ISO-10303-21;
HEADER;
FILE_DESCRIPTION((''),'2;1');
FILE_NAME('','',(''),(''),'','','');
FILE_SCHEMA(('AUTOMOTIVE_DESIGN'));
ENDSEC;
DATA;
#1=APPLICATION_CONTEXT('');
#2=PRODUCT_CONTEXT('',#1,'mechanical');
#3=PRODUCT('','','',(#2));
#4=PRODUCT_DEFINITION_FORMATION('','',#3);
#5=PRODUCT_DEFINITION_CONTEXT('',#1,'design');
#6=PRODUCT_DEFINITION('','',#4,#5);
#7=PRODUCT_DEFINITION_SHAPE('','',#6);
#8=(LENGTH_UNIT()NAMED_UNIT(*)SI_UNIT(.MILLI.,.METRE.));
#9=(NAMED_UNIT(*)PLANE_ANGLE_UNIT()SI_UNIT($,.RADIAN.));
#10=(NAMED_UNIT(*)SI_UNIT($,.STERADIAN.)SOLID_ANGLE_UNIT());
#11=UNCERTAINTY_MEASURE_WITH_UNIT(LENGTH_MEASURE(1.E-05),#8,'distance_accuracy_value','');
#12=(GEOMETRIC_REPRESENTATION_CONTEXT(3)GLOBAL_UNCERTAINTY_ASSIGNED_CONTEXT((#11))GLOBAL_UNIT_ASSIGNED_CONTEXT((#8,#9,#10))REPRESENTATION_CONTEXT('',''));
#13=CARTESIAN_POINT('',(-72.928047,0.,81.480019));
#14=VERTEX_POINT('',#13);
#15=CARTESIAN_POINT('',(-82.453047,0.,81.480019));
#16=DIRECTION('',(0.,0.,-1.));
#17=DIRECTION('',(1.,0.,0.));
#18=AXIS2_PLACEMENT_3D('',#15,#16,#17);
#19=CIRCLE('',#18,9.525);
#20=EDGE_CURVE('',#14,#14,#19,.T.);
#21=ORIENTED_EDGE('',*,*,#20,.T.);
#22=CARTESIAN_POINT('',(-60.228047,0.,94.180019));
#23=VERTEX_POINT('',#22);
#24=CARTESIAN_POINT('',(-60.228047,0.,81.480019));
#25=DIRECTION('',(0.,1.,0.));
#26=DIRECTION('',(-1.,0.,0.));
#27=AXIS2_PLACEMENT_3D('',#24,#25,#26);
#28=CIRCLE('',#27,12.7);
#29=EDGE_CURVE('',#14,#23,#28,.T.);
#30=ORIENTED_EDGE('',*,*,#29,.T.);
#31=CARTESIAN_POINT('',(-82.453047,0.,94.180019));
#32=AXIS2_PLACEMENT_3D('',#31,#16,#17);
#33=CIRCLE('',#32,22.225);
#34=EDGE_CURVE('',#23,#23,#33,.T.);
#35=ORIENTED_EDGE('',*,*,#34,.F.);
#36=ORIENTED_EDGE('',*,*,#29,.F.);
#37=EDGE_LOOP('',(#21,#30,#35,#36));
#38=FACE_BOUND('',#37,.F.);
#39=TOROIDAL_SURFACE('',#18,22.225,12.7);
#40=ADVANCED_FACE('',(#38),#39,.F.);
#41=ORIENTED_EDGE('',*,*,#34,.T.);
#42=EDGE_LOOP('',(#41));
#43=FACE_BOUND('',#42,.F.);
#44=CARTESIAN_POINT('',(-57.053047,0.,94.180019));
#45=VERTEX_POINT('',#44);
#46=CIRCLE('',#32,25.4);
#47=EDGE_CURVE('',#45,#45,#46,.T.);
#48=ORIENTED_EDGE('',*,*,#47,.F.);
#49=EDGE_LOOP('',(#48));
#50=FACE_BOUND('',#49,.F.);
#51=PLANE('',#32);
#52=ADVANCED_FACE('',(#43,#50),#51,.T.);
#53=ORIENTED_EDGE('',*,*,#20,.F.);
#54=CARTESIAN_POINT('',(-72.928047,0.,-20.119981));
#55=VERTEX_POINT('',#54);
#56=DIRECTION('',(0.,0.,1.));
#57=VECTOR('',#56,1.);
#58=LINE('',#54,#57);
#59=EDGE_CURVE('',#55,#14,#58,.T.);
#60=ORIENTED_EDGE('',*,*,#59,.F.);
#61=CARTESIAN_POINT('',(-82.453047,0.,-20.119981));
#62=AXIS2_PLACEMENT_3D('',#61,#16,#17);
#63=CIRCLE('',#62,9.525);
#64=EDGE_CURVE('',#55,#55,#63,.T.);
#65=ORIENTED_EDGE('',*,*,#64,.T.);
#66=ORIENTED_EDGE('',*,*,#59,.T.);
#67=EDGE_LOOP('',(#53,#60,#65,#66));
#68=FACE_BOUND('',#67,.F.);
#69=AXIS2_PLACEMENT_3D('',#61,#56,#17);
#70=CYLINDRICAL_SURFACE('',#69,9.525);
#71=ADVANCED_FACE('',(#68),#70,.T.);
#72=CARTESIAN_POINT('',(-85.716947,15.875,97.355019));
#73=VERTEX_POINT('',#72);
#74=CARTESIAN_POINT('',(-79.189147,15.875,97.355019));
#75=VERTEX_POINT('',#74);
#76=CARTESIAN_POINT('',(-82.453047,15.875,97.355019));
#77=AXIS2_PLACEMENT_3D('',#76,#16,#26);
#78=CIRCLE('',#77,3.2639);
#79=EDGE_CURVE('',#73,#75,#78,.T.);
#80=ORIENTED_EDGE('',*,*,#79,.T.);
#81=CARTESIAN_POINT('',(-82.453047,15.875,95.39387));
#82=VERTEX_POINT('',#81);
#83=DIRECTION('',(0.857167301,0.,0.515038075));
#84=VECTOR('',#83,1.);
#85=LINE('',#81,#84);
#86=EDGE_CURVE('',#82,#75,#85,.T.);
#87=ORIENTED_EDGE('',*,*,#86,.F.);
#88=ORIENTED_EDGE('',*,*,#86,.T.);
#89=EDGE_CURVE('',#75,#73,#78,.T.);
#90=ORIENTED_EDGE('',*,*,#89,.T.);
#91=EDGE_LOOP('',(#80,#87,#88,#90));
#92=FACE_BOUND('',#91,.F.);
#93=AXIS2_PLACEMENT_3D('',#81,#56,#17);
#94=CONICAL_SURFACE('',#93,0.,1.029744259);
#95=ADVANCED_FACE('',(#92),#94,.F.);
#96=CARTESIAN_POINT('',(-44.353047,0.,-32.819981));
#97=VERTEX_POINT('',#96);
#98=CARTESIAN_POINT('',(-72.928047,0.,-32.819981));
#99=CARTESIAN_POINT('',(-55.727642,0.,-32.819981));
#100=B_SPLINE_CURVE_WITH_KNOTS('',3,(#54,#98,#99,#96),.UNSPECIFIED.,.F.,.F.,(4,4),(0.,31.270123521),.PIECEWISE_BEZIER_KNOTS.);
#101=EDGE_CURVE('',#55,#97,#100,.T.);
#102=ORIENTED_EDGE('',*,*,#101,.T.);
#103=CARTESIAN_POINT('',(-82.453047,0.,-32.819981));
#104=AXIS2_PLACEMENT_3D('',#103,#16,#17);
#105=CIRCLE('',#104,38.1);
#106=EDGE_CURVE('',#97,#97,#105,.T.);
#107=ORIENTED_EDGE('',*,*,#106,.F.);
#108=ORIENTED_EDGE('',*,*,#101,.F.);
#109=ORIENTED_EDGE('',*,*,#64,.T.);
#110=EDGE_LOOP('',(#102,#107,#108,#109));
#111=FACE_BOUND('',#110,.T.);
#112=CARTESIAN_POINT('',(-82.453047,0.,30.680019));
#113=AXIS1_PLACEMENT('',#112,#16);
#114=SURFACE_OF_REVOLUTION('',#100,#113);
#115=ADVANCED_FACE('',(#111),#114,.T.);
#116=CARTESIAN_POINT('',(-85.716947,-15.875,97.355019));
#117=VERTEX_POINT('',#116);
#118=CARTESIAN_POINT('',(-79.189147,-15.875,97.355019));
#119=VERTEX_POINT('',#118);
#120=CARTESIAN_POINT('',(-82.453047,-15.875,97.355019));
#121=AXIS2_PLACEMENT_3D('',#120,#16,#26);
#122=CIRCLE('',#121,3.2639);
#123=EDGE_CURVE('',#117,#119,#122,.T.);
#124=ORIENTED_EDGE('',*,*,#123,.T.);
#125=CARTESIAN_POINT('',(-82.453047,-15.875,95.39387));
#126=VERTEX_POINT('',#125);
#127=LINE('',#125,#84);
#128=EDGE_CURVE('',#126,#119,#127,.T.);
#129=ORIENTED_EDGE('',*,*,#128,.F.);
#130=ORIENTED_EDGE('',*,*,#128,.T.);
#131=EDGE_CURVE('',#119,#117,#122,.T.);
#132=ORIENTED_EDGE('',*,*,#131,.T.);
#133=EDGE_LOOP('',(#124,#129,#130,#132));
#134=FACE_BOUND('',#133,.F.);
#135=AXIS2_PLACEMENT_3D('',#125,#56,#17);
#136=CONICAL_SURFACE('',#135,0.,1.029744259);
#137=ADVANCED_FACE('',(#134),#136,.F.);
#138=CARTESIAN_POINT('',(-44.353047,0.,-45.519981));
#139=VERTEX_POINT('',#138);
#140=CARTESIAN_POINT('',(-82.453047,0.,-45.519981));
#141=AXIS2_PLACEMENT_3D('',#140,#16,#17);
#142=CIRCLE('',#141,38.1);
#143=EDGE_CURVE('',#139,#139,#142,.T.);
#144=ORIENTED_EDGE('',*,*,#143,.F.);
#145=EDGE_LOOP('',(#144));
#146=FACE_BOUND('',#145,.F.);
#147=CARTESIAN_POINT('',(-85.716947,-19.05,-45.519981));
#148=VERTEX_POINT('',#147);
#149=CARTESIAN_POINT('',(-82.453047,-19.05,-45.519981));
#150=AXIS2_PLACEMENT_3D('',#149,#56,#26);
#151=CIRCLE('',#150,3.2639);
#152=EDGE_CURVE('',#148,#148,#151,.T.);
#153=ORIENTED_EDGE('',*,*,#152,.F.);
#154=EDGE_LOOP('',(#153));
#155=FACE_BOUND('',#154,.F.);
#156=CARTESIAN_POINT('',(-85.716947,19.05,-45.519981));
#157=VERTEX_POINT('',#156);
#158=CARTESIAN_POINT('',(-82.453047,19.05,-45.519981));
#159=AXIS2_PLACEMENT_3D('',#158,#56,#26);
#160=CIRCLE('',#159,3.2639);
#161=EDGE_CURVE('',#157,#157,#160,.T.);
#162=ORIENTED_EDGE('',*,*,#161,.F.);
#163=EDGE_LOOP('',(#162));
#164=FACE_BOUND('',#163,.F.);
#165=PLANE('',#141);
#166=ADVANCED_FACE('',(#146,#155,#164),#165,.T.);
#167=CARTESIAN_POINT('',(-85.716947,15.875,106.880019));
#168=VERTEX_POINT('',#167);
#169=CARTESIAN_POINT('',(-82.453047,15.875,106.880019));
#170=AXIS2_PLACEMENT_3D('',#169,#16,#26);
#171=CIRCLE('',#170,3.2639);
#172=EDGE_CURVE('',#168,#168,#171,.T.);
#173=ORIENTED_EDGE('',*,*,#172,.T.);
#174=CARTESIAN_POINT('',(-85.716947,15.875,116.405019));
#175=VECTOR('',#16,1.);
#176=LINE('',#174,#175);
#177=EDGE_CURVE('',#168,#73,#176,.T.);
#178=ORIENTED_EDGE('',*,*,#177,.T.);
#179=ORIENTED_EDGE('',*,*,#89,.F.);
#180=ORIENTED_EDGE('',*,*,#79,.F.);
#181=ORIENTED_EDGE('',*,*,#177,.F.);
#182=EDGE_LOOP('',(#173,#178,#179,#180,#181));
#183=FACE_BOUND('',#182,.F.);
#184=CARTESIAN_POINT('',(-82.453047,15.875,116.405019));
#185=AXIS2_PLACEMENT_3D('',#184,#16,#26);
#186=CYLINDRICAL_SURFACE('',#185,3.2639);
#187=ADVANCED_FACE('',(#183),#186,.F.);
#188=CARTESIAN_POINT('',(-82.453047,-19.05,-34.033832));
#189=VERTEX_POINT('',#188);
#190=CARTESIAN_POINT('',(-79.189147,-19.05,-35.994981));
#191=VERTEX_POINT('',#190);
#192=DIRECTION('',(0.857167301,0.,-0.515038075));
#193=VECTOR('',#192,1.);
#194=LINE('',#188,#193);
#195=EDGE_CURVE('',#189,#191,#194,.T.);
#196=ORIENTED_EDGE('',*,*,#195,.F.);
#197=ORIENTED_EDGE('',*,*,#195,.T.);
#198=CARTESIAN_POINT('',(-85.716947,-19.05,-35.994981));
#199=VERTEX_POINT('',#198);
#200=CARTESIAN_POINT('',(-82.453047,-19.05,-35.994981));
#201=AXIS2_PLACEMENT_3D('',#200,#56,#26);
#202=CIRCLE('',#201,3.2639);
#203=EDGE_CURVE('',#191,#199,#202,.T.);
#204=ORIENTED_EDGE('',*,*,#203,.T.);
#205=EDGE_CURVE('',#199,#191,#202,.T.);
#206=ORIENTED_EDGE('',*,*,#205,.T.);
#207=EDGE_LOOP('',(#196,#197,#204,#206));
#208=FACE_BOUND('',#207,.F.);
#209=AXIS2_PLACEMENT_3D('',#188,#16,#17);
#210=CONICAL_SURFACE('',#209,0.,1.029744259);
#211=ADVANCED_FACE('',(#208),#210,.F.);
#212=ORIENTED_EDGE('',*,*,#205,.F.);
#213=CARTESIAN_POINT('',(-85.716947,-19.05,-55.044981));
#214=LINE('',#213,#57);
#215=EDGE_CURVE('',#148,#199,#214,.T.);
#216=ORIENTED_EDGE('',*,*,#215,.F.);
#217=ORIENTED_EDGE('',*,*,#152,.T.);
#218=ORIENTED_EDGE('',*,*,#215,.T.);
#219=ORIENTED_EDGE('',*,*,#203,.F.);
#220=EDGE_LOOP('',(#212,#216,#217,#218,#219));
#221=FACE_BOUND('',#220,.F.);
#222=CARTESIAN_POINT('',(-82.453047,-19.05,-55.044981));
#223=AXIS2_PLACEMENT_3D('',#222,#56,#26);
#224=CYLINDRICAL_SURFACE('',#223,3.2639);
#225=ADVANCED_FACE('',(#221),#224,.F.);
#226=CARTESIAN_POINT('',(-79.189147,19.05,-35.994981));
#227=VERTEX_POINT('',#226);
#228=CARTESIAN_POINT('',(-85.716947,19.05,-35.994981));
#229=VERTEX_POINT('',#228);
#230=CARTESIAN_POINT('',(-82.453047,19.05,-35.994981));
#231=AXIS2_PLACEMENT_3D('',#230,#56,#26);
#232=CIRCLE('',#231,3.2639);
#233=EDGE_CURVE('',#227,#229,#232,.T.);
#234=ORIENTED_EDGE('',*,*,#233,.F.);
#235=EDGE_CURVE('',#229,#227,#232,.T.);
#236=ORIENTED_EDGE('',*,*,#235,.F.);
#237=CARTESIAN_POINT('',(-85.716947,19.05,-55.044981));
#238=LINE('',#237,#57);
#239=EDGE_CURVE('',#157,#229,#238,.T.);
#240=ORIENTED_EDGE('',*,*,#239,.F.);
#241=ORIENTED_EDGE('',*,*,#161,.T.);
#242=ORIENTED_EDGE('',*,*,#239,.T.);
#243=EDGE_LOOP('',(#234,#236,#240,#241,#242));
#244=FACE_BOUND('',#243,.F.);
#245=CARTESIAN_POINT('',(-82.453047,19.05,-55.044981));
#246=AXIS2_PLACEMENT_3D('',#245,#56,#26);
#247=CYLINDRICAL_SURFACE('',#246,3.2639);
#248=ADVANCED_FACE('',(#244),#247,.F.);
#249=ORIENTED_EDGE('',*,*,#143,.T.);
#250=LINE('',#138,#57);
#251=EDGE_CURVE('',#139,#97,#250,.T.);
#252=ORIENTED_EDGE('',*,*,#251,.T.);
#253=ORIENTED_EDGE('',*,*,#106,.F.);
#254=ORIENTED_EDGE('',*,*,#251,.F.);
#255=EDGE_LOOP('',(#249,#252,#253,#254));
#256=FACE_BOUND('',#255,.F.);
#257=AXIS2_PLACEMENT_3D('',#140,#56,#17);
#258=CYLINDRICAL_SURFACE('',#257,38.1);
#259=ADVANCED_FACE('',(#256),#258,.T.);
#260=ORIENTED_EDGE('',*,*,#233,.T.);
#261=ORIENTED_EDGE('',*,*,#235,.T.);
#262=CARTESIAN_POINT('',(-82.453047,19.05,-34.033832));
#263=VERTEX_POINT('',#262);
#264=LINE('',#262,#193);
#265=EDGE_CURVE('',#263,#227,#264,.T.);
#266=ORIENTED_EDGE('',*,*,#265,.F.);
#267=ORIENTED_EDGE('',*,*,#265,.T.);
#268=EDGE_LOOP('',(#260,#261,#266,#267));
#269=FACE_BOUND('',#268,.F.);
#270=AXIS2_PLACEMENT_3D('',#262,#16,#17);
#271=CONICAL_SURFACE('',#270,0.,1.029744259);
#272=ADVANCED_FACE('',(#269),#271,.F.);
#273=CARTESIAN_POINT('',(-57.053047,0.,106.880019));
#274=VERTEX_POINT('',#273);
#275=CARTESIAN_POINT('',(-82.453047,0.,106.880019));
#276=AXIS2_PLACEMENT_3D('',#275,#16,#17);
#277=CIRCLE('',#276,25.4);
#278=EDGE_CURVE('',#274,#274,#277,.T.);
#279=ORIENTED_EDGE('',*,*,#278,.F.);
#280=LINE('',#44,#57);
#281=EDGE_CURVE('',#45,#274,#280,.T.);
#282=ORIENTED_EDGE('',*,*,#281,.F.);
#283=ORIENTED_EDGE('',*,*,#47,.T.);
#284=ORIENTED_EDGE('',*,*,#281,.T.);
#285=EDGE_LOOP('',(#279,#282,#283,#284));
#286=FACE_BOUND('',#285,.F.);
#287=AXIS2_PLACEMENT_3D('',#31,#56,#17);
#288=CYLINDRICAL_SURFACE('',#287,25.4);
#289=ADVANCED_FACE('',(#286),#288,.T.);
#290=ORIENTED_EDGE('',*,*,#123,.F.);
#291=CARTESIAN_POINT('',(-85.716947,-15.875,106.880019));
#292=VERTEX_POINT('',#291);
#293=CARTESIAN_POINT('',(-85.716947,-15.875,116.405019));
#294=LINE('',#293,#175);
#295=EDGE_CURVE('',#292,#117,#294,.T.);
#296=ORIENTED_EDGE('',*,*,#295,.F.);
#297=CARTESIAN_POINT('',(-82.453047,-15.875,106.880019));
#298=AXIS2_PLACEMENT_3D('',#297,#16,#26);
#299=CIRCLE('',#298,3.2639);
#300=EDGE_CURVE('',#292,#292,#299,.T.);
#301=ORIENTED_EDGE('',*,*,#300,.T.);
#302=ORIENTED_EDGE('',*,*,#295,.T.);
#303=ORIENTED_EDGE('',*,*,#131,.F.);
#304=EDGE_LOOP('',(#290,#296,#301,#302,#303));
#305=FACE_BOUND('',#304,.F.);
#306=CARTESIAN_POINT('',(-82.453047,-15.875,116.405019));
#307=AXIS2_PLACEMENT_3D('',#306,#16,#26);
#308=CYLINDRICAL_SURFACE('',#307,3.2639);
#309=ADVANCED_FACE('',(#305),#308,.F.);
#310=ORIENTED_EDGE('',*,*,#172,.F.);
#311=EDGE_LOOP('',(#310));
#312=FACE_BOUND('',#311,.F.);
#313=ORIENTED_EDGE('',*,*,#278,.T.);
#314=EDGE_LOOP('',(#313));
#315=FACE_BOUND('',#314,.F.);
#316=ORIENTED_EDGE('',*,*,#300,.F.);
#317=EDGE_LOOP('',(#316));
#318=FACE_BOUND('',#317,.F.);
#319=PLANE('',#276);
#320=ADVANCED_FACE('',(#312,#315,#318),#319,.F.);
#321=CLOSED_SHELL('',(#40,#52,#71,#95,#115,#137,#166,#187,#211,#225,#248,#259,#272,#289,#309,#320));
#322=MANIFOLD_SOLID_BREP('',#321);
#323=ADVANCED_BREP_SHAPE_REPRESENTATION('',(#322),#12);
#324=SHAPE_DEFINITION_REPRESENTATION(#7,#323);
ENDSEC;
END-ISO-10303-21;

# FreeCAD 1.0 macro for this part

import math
import FreeCAD as App
import Part
import Sketcher

V = App.Vector
Q = App.Units.Quantity

doc = App.newDocument("Part")
body = doc.addObject("PartDesign::Body", "Body")

# Sketch on XZ plane
sketch1 = body.newObject("Sketcher::SketchObject", "Sketch")
sketch1.AttachmentSupport = (doc.getObject("XZ_Plane"), [""])
sketch1.MapMode = "FlatFace"
sketch1.addGeometry([
    Part.LineSegment(V(-57.053047, 106.880019, 0), V(-82.453047, 106.880019, 0)),  # 0
    Part.LineSegment(V(-82.453047, 106.880019, 0), V(-82.453047, -45.519981, 0)),  # 1
    Part.LineSegment(V(-82.453047, -45.519981, 0), V(-44.353047, -45.519981, 0)),  # 2
    Part.LineSegment(V(-44.353047, -45.519981, 0), V(-44.353047, -32.819981, 0)),  # 3
    Part.BSplineCurve([V(-72.928047, -20.119981, 0), V(-72.928047, -32.819981, 0), V(-55.727642, -32.819981, 0), V(-44.353047, -32.819981, 0)], [4, 4], [0, 31.270123521], False, 3, [1, 1, 1, 1], False),  # 4
    Part.LineSegment(V(-72.928047, -20.119981, 0), V(-72.928047, 81.480019, 0)),  # 5
    Part.ArcOfCircle(Part.Circle(V(-60.228047, 81.480019, 0), V(0, 0, 1), 12.7), math.radians(90), math.radians(180)),  # 6
    Part.LineSegment(V(-60.228047, 94.180019, 0), V(-57.053047, 94.180019, 0)),  # 7
    Part.LineSegment(V(-57.053047, 94.180019, 0), V(-57.053047, 106.880019, 0)),  # 8
], False)
sketch1.addGeometry(Part.LineSegment(V(-82.453047, 106.880019, 0), V(-82.453047, -45.519981, 0)), True)  # axis
sketch1.addConstraint([
    Sketcher.Constraint("Block", 4),
    Sketcher.Constraint("Coincident", 0, 2, 1, 1),
    Sketcher.Constraint("Coincident", 1, 2, 2, 1),
    Sketcher.Constraint("Coincident", 2, 2, 3, 1),
    Sketcher.Constraint("Coincident", 3, 2, 4, 2),
    Sketcher.Constraint("Coincident", 4, 1, 5, 1),
    Sketcher.Constraint("Tangent", 5, 2, 6, 2),
    Sketcher.Constraint("Tangent", 6, 1, 7, 1),
    Sketcher.Constraint("Coincident", 7, 2, 8, 1),
    Sketcher.Constraint("Coincident", 8, 2, 0, 1),
    Sketcher.Constraint("Horizontal", 0),
    Sketcher.Constraint("Vertical", 1),
    Sketcher.Constraint("Horizontal", 2),
    Sketcher.Constraint("Vertical", 3),
    Sketcher.Constraint("Vertical", 5),
    Sketcher.Constraint("Horizontal", 7),
    Sketcher.Constraint("Vertical", 8),
    Sketcher.Constraint("Vertical", 9),
    Sketcher.Constraint("Coincident", 9, 1, 0, 2),
    Sketcher.Constraint("Horizontal", 2, 2, 9, 2),
    Sketcher.Constraint("Equal", 3, 8),
    Sketcher.Constraint("Radius", 6, Q("0.5 in")),
    Sketcher.Constraint("DistanceX", 0, 2, 0, 1, Q("1 in")),
    Sketcher.Constraint("DistanceY", 1, 2, 1, 1, Q("6 in")),
    Sketcher.Constraint("DistanceY", 5, 1, 5, 2, Q("4 in")),
    Sketcher.Constraint("DistanceX", 2, 1, 2, 2, Q("1.5 in")),
])
revolution = body.newObject("PartDesign::Revolution", "Revolution")
revolution.Profile = sketch1
revolution.ReferenceAxis = (sketch1, ["Axis0"])
revolution.Angle = 360

# Sketch on XY plane
sketch2 = body.newObject("Sketcher::SketchObject", "Sketch001")
sketch2.AttachmentSupport = (doc.getObject("XY_Plane"), [""])
sketch2.MapMode = "FlatFace"
sketch2.AttachmentOffset = App.Placement(V(0, 0, 106.880019), App.Rotation())
sketch2.addGeometry([
    Part.Circle(V(-82.5, 15.9, 0), V(0, 0, 1), 3.3),
    Part.Circle(V(-82.5, -15.9, 0), V(0, 0, 1), 3.3),
], False)
sketch2.addConstraint([
    Sketcher.Constraint("Equal", 0, 1),
    Sketcher.Constraint("Symmetric", 0, 3, 1, 3, -1),
    Sketcher.Constraint("Diameter", 0, Q("0.257 in")),
    Sketcher.Constraint("DistanceY", 1, 3, 0, 3, Q("1.25 in")),
    Sketcher.Constraint("DistanceX", 0, 3, -1, 1, Q("82.453047 mm")),
])
doc.recompute()
hole = body.newObject("PartDesign::Hole", "Hole")
hole.Profile = sketch2
hole.ThreadType = "None"
hole.Diameter = Q("0.257 in")
hole.DepthType = "Dimension"
hole.Depth = Q("0.375 in")
hole.DrillPoint = "Angled"
hole.DrillPointAngle = 118

# Sketch on XY plane
sketch3 = body.newObject("Sketcher::SketchObject", "Sketch002")
sketch3.AttachmentSupport = (doc.getObject("XY_Plane"), [""])
sketch3.MapMode = "FlatFace"
sketch3.AttachmentOffset = App.Placement(V(0, 0, -45.519981), App.Rotation())
sketch3.addGeometry([
    Part.Circle(V(-82.5, -19.1, 0), V(0, 0, 1), 3.3),
    Part.Circle(V(-82.5, 19.1, 0), V(0, 0, 1), 3.3),
], False)
sketch3.addConstraint([
    Sketcher.Constraint("Equal", 0, 1),
    Sketcher.Constraint("Symmetric", 0, 3, 1, 3, -1),
    Sketcher.Constraint("Diameter", 0, Q("0.257 in")),
    Sketcher.Constraint("DistanceY", 0, 3, 1, 3, Q("1.5 in")),
    Sketcher.Constraint("DistanceX", 0, 3, -1, 1, Q("82.453047 mm")),
])
doc.recompute()
hole2 = body.newObject("PartDesign::Hole", "Hole001")
hole2.Profile = sketch3
hole2.ThreadType = "None"
hole2.Diameter = Q("0.257 in")
hole2.DepthType = "Dimension"
hole2.Depth = Q("0.375 in")
hole2.DrillPoint = "Angled"
hole2.DrillPointAngle = 118
hole2.Reversed = True

doc.recompute()
